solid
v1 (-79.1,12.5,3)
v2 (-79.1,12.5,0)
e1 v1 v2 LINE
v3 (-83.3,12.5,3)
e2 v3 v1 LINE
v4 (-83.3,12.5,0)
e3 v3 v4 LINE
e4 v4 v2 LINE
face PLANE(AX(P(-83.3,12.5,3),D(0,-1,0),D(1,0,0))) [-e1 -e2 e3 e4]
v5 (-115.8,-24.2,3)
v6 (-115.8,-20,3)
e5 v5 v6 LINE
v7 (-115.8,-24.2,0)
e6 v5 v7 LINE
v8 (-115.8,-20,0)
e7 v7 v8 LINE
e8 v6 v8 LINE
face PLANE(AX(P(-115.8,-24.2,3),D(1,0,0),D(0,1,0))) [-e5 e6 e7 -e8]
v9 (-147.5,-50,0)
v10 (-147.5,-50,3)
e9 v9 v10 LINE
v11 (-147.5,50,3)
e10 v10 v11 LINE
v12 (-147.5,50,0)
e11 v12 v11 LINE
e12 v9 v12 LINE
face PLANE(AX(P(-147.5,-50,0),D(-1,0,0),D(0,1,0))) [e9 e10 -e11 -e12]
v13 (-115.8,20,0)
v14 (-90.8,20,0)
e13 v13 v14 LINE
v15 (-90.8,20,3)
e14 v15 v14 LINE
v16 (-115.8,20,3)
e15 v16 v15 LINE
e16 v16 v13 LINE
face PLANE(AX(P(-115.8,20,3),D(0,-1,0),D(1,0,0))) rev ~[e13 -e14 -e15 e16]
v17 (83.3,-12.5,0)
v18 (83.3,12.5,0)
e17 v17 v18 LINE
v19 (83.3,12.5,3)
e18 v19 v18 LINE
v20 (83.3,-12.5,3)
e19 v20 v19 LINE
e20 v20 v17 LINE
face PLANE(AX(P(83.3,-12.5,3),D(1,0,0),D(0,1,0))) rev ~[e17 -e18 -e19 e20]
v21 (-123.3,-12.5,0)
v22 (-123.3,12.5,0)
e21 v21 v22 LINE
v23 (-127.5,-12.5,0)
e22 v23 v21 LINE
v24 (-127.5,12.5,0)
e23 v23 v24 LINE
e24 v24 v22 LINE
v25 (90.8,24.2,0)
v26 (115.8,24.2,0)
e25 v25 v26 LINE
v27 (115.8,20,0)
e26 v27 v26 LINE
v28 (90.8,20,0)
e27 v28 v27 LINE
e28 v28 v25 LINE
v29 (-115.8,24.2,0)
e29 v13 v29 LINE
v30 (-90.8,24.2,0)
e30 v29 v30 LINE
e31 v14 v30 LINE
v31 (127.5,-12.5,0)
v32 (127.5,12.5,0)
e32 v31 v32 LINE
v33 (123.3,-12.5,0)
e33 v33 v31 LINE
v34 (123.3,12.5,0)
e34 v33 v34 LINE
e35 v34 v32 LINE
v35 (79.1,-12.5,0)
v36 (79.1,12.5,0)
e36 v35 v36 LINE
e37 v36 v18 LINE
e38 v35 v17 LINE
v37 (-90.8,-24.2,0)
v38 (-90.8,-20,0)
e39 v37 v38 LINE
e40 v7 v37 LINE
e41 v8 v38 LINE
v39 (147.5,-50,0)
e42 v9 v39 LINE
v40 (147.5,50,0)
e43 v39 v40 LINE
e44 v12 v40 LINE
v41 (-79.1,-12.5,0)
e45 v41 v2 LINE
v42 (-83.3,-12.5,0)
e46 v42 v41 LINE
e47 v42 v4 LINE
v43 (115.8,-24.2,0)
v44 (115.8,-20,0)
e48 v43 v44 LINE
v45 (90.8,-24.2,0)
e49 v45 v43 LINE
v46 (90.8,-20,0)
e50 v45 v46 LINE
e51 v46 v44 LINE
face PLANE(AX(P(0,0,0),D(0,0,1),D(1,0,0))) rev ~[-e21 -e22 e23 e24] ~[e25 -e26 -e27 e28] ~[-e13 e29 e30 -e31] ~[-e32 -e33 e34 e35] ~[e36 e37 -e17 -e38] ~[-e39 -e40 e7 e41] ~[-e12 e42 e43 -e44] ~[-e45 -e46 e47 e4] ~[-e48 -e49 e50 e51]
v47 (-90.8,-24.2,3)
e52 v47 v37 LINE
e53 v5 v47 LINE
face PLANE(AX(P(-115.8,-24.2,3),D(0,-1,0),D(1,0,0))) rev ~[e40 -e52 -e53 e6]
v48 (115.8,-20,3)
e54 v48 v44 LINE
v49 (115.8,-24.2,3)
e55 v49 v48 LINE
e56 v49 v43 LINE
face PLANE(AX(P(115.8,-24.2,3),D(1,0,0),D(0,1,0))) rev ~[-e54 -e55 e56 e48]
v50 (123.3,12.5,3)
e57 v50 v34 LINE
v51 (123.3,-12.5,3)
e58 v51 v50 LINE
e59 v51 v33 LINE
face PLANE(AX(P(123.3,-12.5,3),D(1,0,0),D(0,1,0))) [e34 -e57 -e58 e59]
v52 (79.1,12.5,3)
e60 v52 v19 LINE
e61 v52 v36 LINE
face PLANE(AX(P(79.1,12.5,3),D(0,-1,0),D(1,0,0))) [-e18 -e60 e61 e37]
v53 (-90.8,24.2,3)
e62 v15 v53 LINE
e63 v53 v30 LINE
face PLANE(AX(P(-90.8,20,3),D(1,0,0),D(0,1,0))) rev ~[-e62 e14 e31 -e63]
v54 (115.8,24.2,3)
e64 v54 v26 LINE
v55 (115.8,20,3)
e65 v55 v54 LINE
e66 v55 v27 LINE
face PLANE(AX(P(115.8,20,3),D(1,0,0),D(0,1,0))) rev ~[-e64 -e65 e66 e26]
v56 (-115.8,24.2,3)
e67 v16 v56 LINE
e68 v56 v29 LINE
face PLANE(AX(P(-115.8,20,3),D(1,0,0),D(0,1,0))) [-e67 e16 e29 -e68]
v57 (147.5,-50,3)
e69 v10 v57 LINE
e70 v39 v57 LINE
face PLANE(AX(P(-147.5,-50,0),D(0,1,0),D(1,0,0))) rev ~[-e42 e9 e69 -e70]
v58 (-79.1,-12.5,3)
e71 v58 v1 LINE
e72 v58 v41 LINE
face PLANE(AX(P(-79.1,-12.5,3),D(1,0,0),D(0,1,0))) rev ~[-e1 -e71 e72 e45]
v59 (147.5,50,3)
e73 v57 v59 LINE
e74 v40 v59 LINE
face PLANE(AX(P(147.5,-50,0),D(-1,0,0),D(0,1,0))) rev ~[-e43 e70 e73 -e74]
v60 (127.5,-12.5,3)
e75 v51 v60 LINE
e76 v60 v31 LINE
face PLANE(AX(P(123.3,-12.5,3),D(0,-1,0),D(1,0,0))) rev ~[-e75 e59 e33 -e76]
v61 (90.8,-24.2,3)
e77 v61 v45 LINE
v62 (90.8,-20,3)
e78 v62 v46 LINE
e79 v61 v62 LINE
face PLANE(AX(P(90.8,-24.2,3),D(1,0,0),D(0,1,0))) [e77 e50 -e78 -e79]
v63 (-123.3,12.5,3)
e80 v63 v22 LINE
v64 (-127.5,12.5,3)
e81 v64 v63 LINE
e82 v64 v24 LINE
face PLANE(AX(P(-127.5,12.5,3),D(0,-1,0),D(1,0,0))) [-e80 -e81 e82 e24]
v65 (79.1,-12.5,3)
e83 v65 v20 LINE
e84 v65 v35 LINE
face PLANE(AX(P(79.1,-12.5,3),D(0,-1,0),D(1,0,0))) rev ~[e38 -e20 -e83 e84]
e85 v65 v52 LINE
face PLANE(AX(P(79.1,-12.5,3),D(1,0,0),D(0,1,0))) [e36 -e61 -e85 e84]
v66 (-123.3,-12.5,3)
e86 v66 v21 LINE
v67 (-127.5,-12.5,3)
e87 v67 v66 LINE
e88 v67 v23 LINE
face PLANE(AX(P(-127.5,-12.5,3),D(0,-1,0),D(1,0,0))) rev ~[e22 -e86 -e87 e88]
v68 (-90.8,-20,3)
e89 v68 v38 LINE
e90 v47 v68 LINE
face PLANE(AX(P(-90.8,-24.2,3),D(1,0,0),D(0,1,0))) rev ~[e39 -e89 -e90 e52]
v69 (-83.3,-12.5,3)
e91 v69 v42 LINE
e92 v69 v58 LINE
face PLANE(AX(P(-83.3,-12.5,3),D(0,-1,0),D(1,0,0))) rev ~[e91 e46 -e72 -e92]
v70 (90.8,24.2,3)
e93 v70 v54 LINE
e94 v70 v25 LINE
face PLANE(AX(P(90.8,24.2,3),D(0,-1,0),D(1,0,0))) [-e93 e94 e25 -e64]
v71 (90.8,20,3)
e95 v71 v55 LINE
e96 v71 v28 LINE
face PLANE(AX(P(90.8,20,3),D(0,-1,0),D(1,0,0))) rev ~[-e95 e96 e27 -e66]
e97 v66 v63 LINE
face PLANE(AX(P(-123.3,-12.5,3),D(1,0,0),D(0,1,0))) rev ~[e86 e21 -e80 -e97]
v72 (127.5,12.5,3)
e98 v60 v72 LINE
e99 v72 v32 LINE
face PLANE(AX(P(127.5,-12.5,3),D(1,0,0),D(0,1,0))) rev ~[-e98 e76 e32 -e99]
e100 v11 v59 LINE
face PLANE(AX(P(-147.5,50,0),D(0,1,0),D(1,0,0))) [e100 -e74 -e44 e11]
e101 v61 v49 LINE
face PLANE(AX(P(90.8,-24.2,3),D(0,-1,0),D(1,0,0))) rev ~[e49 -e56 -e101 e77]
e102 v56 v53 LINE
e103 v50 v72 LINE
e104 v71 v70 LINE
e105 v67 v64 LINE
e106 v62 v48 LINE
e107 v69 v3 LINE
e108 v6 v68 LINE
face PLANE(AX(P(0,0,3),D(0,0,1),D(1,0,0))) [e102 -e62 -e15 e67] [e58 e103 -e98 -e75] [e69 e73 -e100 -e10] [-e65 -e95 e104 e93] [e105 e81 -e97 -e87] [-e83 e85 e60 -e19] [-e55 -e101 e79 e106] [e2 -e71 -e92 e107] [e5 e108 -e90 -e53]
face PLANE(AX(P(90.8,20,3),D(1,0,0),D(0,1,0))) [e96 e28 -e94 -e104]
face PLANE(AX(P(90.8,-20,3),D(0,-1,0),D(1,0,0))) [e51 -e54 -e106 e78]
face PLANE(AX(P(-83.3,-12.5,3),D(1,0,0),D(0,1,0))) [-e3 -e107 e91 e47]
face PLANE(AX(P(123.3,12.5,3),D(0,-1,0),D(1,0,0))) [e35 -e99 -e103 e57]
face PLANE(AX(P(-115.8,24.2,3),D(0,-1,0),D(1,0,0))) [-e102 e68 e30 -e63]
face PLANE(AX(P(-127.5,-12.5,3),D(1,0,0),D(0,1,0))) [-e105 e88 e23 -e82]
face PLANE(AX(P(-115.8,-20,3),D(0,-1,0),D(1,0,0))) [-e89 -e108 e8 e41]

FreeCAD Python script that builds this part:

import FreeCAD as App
import Part
import Sketcher
from FreeCAD import Vector

doc = App.newDocument("Part")
body = doc.addObject("PartDesign::Body", "Body")

# Sketch on XY plane
sketch1 = doc.addObject("Sketcher::SketchObject", "Sketch")
body.addObject(sketch1)
sketch1.AttachmentSupport = (doc.XY_Plane, [""])
sketch1.MapMode = "FlatFace"
sketch1.addGeometry([
    Part.LineSegment(Vector(-148, 50, 0), Vector(-148, -50, 0)),
    Part.LineSegment(Vector(-148, -50, 0), Vector(148, -50, 0)),
    Part.LineSegment(Vector(148, -50, 0), Vector(148, 50, 0)),
    Part.LineSegment(Vector(148, 50, 0), Vector(-148, 50, 0)),
], False)
sketch1.addConstraint([
    Sketcher.Constraint("Coincident", 0, 2, 1, 1),
    Sketcher.Constraint("Coincident", 1, 2, 2, 1),
    Sketcher.Constraint("Coincident", 2, 2, 3, 1),
    Sketcher.Constraint("Coincident", 3, 2, 0, 1),
    Sketcher.Constraint("Vertical", 0),
    Sketcher.Constraint("Horizontal", 1),
    Sketcher.Constraint("Vertical", 2),
    Sketcher.Constraint("Horizontal", 3),
    Sketcher.Constraint("Symmetric", 0, 2, 2, 2, -1, 1),
    Sketcher.Constraint("DistanceX", 1, 1, 1, 2, 295.0),
    Sketcher.Constraint("DistanceY", 0, 2, 0, 1, 100.0),
])
pad1 = doc.addObject("PartDesign::Pad", "Pad")
body.addObject(pad1)
pad1.Profile = sketch1
pad1.Length = 3

# Sketch on XY plane
sketch2 = doc.addObject("Sketcher::SketchObject", "Sketch001")
body.addObject(sketch2)
sketch2.AttachmentSupport = (doc.XY_Plane, [""])
sketch2.MapMode = "FlatFace"
sketch2.AttachmentOffset = App.Placement(Vector(0, 0, 3), App.Rotation())
sketch2.addGeometry([
    Part.LineSegment(Vector(123.3, 12.5, 0), Vector(123.3, -12.5, 0)),  # 0
    Part.LineSegment(Vector(123.3, -12.5, 0), Vector(127.5, -12.5, 0)),  # 1
    Part.LineSegment(Vector(127.5, -12.5, 0), Vector(127.5, 12.5, 0)),  # 2
    Part.LineSegment(Vector(127.5, 12.5, 0), Vector(123.3, 12.5, 0)),  # 3
    Part.LineSegment(Vector(-83.3, 12.5, 0), Vector(-83.3, -12.5, 0)),  # 4
    Part.LineSegment(Vector(-83.3, -12.5, 0), Vector(-79.1, -12.5, 0)),  # 5
    Part.LineSegment(Vector(-79.1, -12.5, 0), Vector(-79.1, 12.5, 0)),  # 6
    Part.LineSegment(Vector(-79.1, 12.5, 0), Vector(-83.3, 12.5, 0)),  # 7
    Part.LineSegment(Vector(-127.5, 12.5, 0), Vector(-127.5, -12.5, 0)),  # 8
    Part.LineSegment(Vector(-127.5, -12.5, 0), Vector(-123.3, -12.5, 0)),  # 9
    Part.LineSegment(Vector(-123.3, -12.5, 0), Vector(-123.3, 12.5, 0)),  # 10
    Part.LineSegment(Vector(-123.3, 12.5, 0), Vector(-127.5, 12.5, 0)),  # 11
    Part.LineSegment(Vector(-115.8, 24.2, 0), Vector(-115.8, 20, 0)),  # 12
    Part.LineSegment(Vector(-115.8, 20, 0), Vector(-90.8, 20, 0)),  # 13
    Part.LineSegment(Vector(-90.8, 20, 0), Vector(-90.8, 24.2, 0)),  # 14
    Part.LineSegment(Vector(-90.8, 24.2, 0), Vector(-115.8, 24.2, 0)),  # 15
    Part.LineSegment(Vector(-115.8, -20, 0), Vector(-115.8, -24.2, 0)),  # 16
    Part.LineSegment(Vector(-115.8, -24.2, 0), Vector(-90.8, -24.2, 0)),  # 17
    Part.LineSegment(Vector(-90.8, -24.2, 0), Vector(-90.8, -20, 0)),  # 18
    Part.LineSegment(Vector(-90.8, -20, 0), Vector(-115.8, -20, 0)),  # 19
    Part.LineSegment(Vector(79.1, 12.5, 0), Vector(79.1, -12.5, 0)),  # 20
    Part.LineSegment(Vector(79.1, -12.5, 0), Vector(83.3, -12.5, 0)),  # 21
    Part.LineSegment(Vector(83.3, -12.5, 0), Vector(83.3, 12.5, 0)),  # 22
    Part.LineSegment(Vector(83.3, 12.5, 0), Vector(79.1, 12.5, 0)),  # 23
    Part.LineSegment(Vector(90.8, -20, 0), Vector(90.8, -24.2, 0)),  # 24
    Part.LineSegment(Vector(90.8, -24.2, 0), Vector(115.8, -24.2, 0)),  # 25
    Part.LineSegment(Vector(115.8, -24.2, 0), Vector(115.8, -20, 0)),  # 26
    Part.LineSegment(Vector(115.8, -20, 0), Vector(90.8, -20, 0)),  # 27
    Part.LineSegment(Vector(90.8, 24.2, 0), Vector(90.8, 20, 0)),  # 28
    Part.LineSegment(Vector(90.8, 20, 0), Vector(115.8, 20, 0)),  # 29
    Part.LineSegment(Vector(115.8, 20, 0), Vector(115.8, 24.2, 0)),  # 30
    Part.LineSegment(Vector(115.8, 24.2, 0), Vector(90.8, 24.2, 0)),  # 31
], False)
sketch2.addConstraint([
    Sketcher.Constraint("Coincident", 0, 2, 1, 1),
    Sketcher.Constraint("Coincident", 1, 2, 2, 1),
    Sketcher.Constraint("Coincident", 2, 2, 3, 1),
    Sketcher.Constraint("Coincident", 3, 2, 0, 1),
    Sketcher.Constraint("Coincident", 4, 2, 5, 1),
    Sketcher.Constraint("Coincident", 5, 2, 6, 1),
    Sketcher.Constraint("Coincident", 6, 2, 7, 1),
    Sketcher.Constraint("Coincident", 7, 2, 4, 1),
    Sketcher.Constraint("Coincident", 8, 2, 9, 1),
    Sketcher.Constraint("Coincident", 9, 2, 10, 1),
    Sketcher.Constraint("Coincident", 10, 2, 11, 1),
    Sketcher.Constraint("Coincident", 11, 2, 8, 1),
    Sketcher.Constraint("Coincident", 12, 2, 13, 1),
    Sketcher.Constraint("Coincident", 13, 2, 14, 1),
    Sketcher.Constraint("Coincident", 14, 2, 15, 1),
    Sketcher.Constraint("Coincident", 15, 2, 12, 1),
    Sketcher.Constraint("Coincident", 16, 2, 17, 1),
    Sketcher.Constraint("Coincident", 17, 2, 18, 1),
    Sketcher.Constraint("Coincident", 18, 2, 19, 1),
    Sketcher.Constraint("Coincident", 19, 2, 16, 1),
    Sketcher.Constraint("Coincident", 20, 2, 21, 1),
    Sketcher.Constraint("Coincident", 21, 2, 22, 1),
    Sketcher.Constraint("Coincident", 22, 2, 23, 1),
    Sketcher.Constraint("Coincident", 23, 2, 20, 1),
    Sketcher.Constraint("Coincident", 24, 2, 25, 1),
    Sketcher.Constraint("Coincident", 25, 2, 26, 1),
    Sketcher.Constraint("Coincident", 26, 2, 27, 1),
    Sketcher.Constraint("Coincident", 27, 2, 24, 1),
    Sketcher.Constraint("Coincident", 28, 2, 29, 1),
    Sketcher.Constraint("Coincident", 29, 2, 30, 1),
    Sketcher.Constraint("Coincident", 30, 2, 31, 1),
    Sketcher.Constraint("Coincident", 31, 2, 28, 1),
    Sketcher.Constraint("Vertical", 0),
    Sketcher.Constraint("Horizontal", 1),
    Sketcher.Constraint("Vertical", 2),
    Sketcher.Constraint("Horizontal", 3),
    Sketcher.Constraint("Vertical", 4),
    Sketcher.Constraint("Horizontal", 5),
    Sketcher.Constraint("Vertical", 6),
    Sketcher.Constraint("Horizontal", 7),
    Sketcher.Constraint("Vertical", 8),
    Sketcher.Constraint("Horizontal", 9),
    Sketcher.Constraint("Vertical", 10),
    Sketcher.Constraint("Horizontal", 11),
    Sketcher.Constraint("Vertical", 12),
    Sketcher.Constraint("Horizontal", 13),
    Sketcher.Constraint("Vertical", 14),
    Sketcher.Constraint("Horizontal", 15),
    Sketcher.Constraint("Vertical", 16),
    Sketcher.Constraint("Horizontal", 17),
    Sketcher.Constraint("Vertical", 18),
    Sketcher.Constraint("Horizontal", 19),
    Sketcher.Constraint("Vertical", 20),
    Sketcher.Constraint("Horizontal", 21),
    Sketcher.Constraint("Vertical", 22),
    Sketcher.Constraint("Horizontal", 23),
    Sketcher.Constraint("Vertical", 24),
    Sketcher.Constraint("Horizontal", 25),
    Sketcher.Constraint("Vertical", 26),
    Sketcher.Constraint("Horizontal", 27),
    Sketcher.Constraint("Vertical", 28),
    Sketcher.Constraint("Horizontal", 29),
    Sketcher.Constraint("Vertical", 30),
    Sketcher.Constraint("Horizontal", 31),
    Sketcher.Constraint("Symmetric", 2, 2, 8, 2, -1, 1),
    Sketcher.Constraint("Symmetric", 0, 2, 10, 2, -1, 1),
    Sketcher.Constraint("Symmetric", 6, 2, 20, 2, -1, 1),
    Sketcher.Constraint("Symmetric", 4, 2, 22, 2, -1, 1),
    Sketcher.Constraint("Symmetric", 14, 2, 24, 2, -1, 1),
    Sketcher.Constraint("Symmetric", 12, 2, 26, 2, -1, 1),
    Sketcher.Constraint("Symmetric", 18, 2, 28, 2, -1, 1),
    Sketcher.Constraint("Symmetric", 16, 2, 30, 2, -1, 1),
    Sketcher.Constraint("Symmetric", 17, 2, 24, 2, -2),
    Sketcher.Constraint("Symmetric", 19, 2, 26, 2, -2),
    Sketcher.Constraint("Horizontal", 1, 2, 4, 2),
    Sketcher.Constraint("Horizontal", 3, 2, 6, 2),
    Sketcher.Constraint("Horizontal", 5, 2, 8, 2),
    Sketcher.Constraint("Equal", 3, 5),
    Sketcher.Constraint("Equal", 31, 0),
    Sketcher.Constraint("Equal", 23, 12),
    Sketcher.Constraint("DistanceX", 13, 1, 13, 2, 25.0),
    Sketcher.Constraint("DistanceX", 1, 1, 1, 2, 4.2),
    Sketcher.Constraint("DistanceY", -1, 1, 12, 2, 20.0),
    Sketcher.Constraint("DistanceX", 9, 2, 4, 2, 40.0),
    Sketcher.Constraint("DistanceX", -1, 1, 0, 2, 123.3),
    Sketcher.Constraint("DistanceX", 12, 2, -1, 1, 115.8),
])
pocket1 = doc.addObject("PartDesign::Pocket", "Pocket")
body.addObject(pocket1)
pocket1.Profile = sketch2
pocket1.Type = "ThroughAll"

doc.recompute()
